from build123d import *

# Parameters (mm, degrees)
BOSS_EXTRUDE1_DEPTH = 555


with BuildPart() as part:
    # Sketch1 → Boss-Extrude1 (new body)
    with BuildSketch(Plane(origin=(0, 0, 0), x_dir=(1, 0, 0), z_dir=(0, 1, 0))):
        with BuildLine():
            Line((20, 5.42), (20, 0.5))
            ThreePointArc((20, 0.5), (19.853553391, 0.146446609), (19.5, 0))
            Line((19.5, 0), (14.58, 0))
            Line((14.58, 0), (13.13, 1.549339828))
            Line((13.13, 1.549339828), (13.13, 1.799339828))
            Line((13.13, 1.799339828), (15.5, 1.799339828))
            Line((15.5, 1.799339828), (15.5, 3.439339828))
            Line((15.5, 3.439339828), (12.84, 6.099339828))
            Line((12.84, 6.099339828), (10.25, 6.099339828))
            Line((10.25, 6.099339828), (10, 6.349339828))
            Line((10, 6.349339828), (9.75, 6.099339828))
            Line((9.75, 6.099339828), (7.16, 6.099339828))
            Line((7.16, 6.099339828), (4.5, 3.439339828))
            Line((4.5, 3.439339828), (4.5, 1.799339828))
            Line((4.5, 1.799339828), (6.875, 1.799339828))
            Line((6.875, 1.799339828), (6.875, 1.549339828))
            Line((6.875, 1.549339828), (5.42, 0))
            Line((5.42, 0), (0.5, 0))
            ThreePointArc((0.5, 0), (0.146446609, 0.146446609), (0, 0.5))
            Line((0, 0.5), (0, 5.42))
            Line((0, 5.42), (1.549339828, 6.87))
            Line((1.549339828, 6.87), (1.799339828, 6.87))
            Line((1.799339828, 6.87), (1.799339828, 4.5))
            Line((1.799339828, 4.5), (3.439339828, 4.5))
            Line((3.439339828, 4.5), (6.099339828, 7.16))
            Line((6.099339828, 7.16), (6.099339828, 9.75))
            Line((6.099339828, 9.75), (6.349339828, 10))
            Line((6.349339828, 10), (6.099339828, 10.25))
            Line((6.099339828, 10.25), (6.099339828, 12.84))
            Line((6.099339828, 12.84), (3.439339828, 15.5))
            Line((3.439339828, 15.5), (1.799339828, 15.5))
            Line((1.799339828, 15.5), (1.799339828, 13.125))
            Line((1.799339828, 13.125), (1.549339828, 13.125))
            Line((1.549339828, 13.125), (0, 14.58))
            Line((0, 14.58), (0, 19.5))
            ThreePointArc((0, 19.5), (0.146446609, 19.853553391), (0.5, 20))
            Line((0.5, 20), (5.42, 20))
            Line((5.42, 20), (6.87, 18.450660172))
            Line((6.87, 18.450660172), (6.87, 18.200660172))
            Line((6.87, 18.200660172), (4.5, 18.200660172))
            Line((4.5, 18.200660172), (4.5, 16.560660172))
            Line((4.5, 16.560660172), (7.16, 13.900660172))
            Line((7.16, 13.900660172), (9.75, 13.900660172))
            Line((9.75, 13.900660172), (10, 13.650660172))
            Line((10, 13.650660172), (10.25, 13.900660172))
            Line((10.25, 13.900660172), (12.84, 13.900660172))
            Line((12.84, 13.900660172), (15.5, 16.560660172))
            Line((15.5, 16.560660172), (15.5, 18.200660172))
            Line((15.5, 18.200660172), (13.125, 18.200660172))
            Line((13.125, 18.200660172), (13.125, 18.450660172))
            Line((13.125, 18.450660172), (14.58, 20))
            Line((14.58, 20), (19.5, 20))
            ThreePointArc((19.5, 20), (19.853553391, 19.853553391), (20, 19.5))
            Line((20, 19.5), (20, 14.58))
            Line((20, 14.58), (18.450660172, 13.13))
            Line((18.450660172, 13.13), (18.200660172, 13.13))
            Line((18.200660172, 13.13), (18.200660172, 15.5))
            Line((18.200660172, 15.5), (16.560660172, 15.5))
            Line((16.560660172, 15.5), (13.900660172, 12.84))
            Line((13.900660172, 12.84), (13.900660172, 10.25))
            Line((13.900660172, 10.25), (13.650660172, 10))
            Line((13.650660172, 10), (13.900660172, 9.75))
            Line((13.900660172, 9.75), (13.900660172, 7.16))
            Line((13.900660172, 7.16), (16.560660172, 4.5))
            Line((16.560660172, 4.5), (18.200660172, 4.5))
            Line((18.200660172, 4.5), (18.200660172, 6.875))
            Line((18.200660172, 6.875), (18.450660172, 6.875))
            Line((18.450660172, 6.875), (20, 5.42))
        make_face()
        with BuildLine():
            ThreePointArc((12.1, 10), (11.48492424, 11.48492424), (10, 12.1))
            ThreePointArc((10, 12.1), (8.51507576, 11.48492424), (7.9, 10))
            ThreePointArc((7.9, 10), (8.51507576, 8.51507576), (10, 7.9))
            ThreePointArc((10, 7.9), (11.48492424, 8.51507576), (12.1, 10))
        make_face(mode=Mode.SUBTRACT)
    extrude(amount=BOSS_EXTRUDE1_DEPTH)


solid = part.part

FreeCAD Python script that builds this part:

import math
import FreeCAD as App
import Part
import Sketcher
from FreeCAD import Vector

doc = App.newDocument("Part")
body = doc.addObject("PartDesign::Body", "Body")

sketch1 = body.newObject("Sketcher::SketchObject", "Sketch")
sketch1.AttachmentSupport = (doc.getObject("XZ_Plane"), [""])
sketch1.MapMode = "FlatFace"
sketch1.addGeometry(Part.LineSegment(Vector(20, -0.5, 0), Vector(20, -5.42, 0)), False)
sketch1.addGeometry(Part.LineSegment(Vector(20, -5.42, 0), Vector(18.45, -6.88, 0)), False)
sketch1.addGeometry(Part.LineSegment(Vector(18.45, -6.88, 0), Vector(18.2, -6.88, 0)), False)
sketch1.addGeometry(Part.LineSegment(Vector(18.2, -6.88, 0), Vector(18.2, -4.5, 0)), False)
sketch1.addGeometry(Part.LineSegment(Vector(18.2, -4.5, 0), Vector(16.56, -4.5, 0)), False)
sketch1.addGeometry(Part.LineSegment(Vector(16.56, -4.5, 0), Vector(13.9, -7.16, 0)), False)
sketch1.addGeometry(Part.LineSegment(Vector(13.9, -7.16, 0), Vector(13.9, -9.75, 0)), False)
sketch1.addGeometry(Part.LineSegment(Vector(13.9, -9.75, 0), Vector(13.65, -10, 0)), False)
sketch1.addGeometry(Part.LineSegment(Vector(13.65, -10, 0), Vector(13.9, -10.25, 0)), False)
sketch1.addGeometry(Part.LineSegment(Vector(13.9, -10.25, 0), Vector(13.9, -12.84, 0)), False)
sketch1.addGeometry(Part.LineSegment(Vector(13.9, -12.84, 0), Vector(16.56, -15.5, 0)), False)
sketch1.addGeometry(Part.LineSegment(Vector(16.56, -15.5, 0), Vector(18.2, -15.5, 0)), False)
sketch1.addGeometry(Part.LineSegment(Vector(18.2, -15.5, 0), Vector(18.2, -13.13, 0)), False)
sketch1.addGeometry(Part.LineSegment(Vector(18.2, -13.13, 0), Vector(18.45, -13.13, 0)), False)
sketch1.addGeometry(Part.LineSegment(Vector(18.45, -13.13, 0), Vector(20, -14.58, 0)), False)
sketch1.addGeometry(Part.LineSegment(Vector(20, -14.58, 0), Vector(20, -19.5, 0)), False)
sketch1.addGeometry(Part.ArcOfCircle(Part.Circle(Vector(19.5, -19.5, 0), Vector(0, 0, 1), 0.5), math.radians(-90), math.radians(0)), False)
sketch1.addGeometry(Part.LineSegment(Vector(19.5, -20, 0), Vector(14.58, -20, 0)), False)
sketch1.addGeometry(Part.LineSegment(Vector(14.58, -20, 0), Vector(13.12, -18.45, 0)), False)
sketch1.addGeometry(Part.LineSegment(Vector(13.12, -18.45, 0), Vector(13.12, -18.2, 0)), False)
sketch1.addGeometry(Part.LineSegment(Vector(13.12, -18.2, 0), Vector(15.5, -18.2, 0)), False)
sketch1.addGeometry(Part.LineSegment(Vector(15.5, -18.2, 0), Vector(15.5, -16.56, 0)), False)
sketch1.addGeometry(Part.LineSegment(Vector(15.5, -16.56, 0), Vector(12.84, -13.9, 0)), False)
sketch1.addGeometry(Part.LineSegment(Vector(12.84, -13.9, 0), Vector(10.25, -13.9, 0)), False)
sketch1.addGeometry(Part.LineSegment(Vector(10.25, -13.9, 0), Vector(10, -13.65, 0)), False)
sketch1.addGeometry(Part.LineSegment(Vector(10, -13.65, 0), Vector(9.75, -13.9, 0)), False)
sketch1.addGeometry(Part.LineSegment(Vector(9.75, -13.9, 0), Vector(7.16, -13.9, 0)), False)
sketch1.addGeometry(Part.LineSegment(Vector(7.16, -13.9, 0), Vector(4.5, -16.56, 0)), False)
sketch1.addGeometry(Part.LineSegment(Vector(4.5, -16.56, 0), Vector(4.5, -18.2, 0)), False)
sketch1.addGeometry(Part.LineSegment(Vector(4.5, -18.2, 0), Vector(6.87, -18.2, 0)), False)
sketch1.addGeometry(Part.LineSegment(Vector(6.87, -18.2, 0), Vector(6.87, -18.45, 0)), False)
sketch1.addGeometry(Part.LineSegment(Vector(6.87, -18.45, 0), Vector(5.42, -20, 0)), False)
sketch1.addGeometry(Part.LineSegment(Vector(5.42, -20, 0), Vector(0.5, -20, 0)), False)
sketch1.addGeometry(Part.ArcOfCircle(Part.Circle(Vector(0.5, -19.5, 0), Vector(0, 0, 1), 0.5), math.radians(180), math.radians(270)), False)
sketch1.addGeometry(Part.LineSegment(Vector(0, -19.5, 0), Vector(0, -14.58, 0)), False)
sketch1.addGeometry(Part.LineSegment(Vector(0, -14.58, 0), Vector(1.55, -13.12, 0)), False)
sketch1.addGeometry(Part.LineSegment(Vector(1.55, -13.12, 0), Vector(1.8, -13.12, 0)), False)
sketch1.addGeometry(Part.LineSegment(Vector(1.8, -13.12, 0), Vector(1.8, -15.5, 0)), False)
sketch1.addGeometry(Part.LineSegment(Vector(1.8, -15.5, 0), Vector(3.44, -15.5, 0)), False)
sketch1.addGeometry(Part.LineSegment(Vector(3.44, -15.5, 0), Vector(6.1, -12.84, 0)), False)
sketch1.addGeometry(Part.LineSegment(Vector(6.1, -12.84, 0), Vector(6.1, -10.25, 0)), False)
sketch1.addGeometry(Part.LineSegment(Vector(6.1, -10.25, 0), Vector(6.35, -10, 0)), False)
sketch1.addGeometry(Part.LineSegment(Vector(6.35, -10, 0), Vector(6.1, -9.75, 0)), False)
sketch1.addGeometry(Part.LineSegment(Vector(6.1, -9.75, 0), Vector(6.1, -7.16, 0)), False)
sketch1.addGeometry(Part.LineSegment(Vector(6.1, -7.16, 0), Vector(3.44, -4.5, 0)), False)
sketch1.addGeometry(Part.LineSegment(Vector(3.44, -4.5, 0), Vector(1.8, -4.5, 0)), False)
sketch1.addGeometry(Part.LineSegment(Vector(1.8, -4.5, 0), Vector(1.8, -6.87, 0)), False)
sketch1.addGeometry(Part.LineSegment(Vector(1.8, -6.87, 0), Vector(1.55, -6.87, 0)), False)
sketch1.addGeometry(Part.LineSegment(Vector(1.55, -6.87, 0), Vector(0, -5.42, 0)), False)
sketch1.addGeometry(Part.LineSegment(Vector(0, -5.42, 0), Vector(0, -0.5, 0)), False)
sketch1.addGeometry(Part.ArcOfCircle(Part.Circle(Vector(0.5, -0.5, 0), Vector(0, 0, 1), 0.5), math.radians(90), math.radians(180)), False)
sketch1.addGeometry(Part.LineSegment(Vector(0.5, 0, 0), Vector(5.42, 0, 0)), False)
sketch1.addGeometry(Part.LineSegment(Vector(5.42, 0, 0), Vector(6.88, -1.55, 0)), False)
sketch1.addGeometry(Part.LineSegment(Vector(6.88, -1.55, 0), Vector(6.88, -1.8, 0)), False)
sketch1.addGeometry(Part.LineSegment(Vector(6.88, -1.8, 0), Vector(4.5, -1.8, 0)), False)
sketch1.addGeometry(Part.LineSegment(Vector(4.5, -1.8, 0), Vector(4.5, -3.44, 0)), False)
sketch1.addGeometry(Part.LineSegment(Vector(4.5, -3.44, 0), Vector(7.16, -6.1, 0)), False)
sketch1.addGeometry(Part.LineSegment(Vector(7.16, -6.1, 0), Vector(9.75, -6.1, 0)), False)
sketch1.addGeometry(Part.LineSegment(Vector(9.75, -6.1, 0), Vector(10, -6.35, 0)), False)
sketch1.addGeometry(Part.LineSegment(Vector(10, -6.35, 0), Vector(10.25, -6.1, 0)), False)
sketch1.addGeometry(Part.LineSegment(Vector(10.25, -6.1, 0), Vector(12.84, -6.1, 0)), False)
sketch1.addGeometry(Part.LineSegment(Vector(12.84, -6.1, 0), Vector(15.5, -3.44, 0)), False)
sketch1.addGeometry(Part.LineSegment(Vector(15.5, -3.44, 0), Vector(15.5, -1.8, 0)), False)
sketch1.addGeometry(Part.LineSegment(Vector(15.5, -1.8, 0), Vector(13.13, -1.8, 0)), False)
sketch1.addGeometry(Part.LineSegment(Vector(13.13, -1.8, 0), Vector(13.13, -1.55, 0)), False)
sketch1.addGeometry(Part.LineSegment(Vector(13.13, -1.55, 0), Vector(14.58, 0, 0)), False)
sketch1.addGeometry(Part.LineSegment(Vector(14.58, 0, 0), Vector(19.5, 0, 0)), False)
sketch1.addGeometry(Part.ArcOfCircle(Part.Circle(Vector(19.5, -0.5, 0), Vector(0, 0, 1), 0.5), math.radians(0), math.radians(90)), False)
sketch1.addGeometry(Part.ArcOfCircle(Part.Circle(Vector(10, -10, 0), Vector(0, 0, 1), 2.1), math.radians(0), math.radians(90)), False)
sketch1.addGeometry(Part.ArcOfCircle(Part.Circle(Vector(10, -10, 0), Vector(0, 0, 1), 2.1), math.radians(90), math.radians(180)), False)
sketch1.addGeometry(Part.ArcOfCircle(Part.Circle(Vector(10, -10, 0), Vector(0, 0, 1), 2.1), math.radians(-180), math.radians(-90)), False)
sketch1.addGeometry(Part.ArcOfCircle(Part.Circle(Vector(10, -10, 0), Vector(0, 0, 1), 2.1), math.radians(-90), math.radians(0)), False)
sketch1.addConstraint(Sketcher.Constraint("Coincident", 0, 2, 1, 1))
sketch1.addConstraint(Sketcher.Constraint("Coincident", 1, 2, 2, 1))
sketch1.addConstraint(Sketcher.Constraint("Coincident", 2, 2, 3, 1))
sketch1.addConstraint(Sketcher.Constraint("Coincident", 3, 2, 4, 1))
sketch1.addConstraint(Sketcher.Constraint("Coincident", 4, 2, 5, 1))
sketch1.addConstraint(Sketcher.Constraint("Coincident", 5, 2, 6, 1))
sketch1.addConstraint(Sketcher.Constraint("Coincident", 6, 2, 7, 1))
sketch1.addConstraint(Sketcher.Constraint("Coincident", 7, 2, 8, 1))
sketch1.addConstraint(Sketcher.Constraint("Coincident", 8, 2, 9, 1))
sketch1.addConstraint(Sketcher.Constraint("Coincident", 9, 2, 10, 1))
sketch1.addConstraint(Sketcher.Constraint("Coincident", 10, 2, 11, 1))
sketch1.addConstraint(Sketcher.Constraint("Coincident", 11, 2, 12, 1))
sketch1.addConstraint(Sketcher.Constraint("Coincident", 12, 2, 13, 1))
sketch1.addConstraint(Sketcher.Constraint("Coincident", 13, 2, 14, 1))
sketch1.addConstraint(Sketcher.Constraint("Coincident", 14, 2, 15, 1))
sketch1.addConstraint(Sketcher.Constraint("Tangent", 15, 2, 16, 2))
sketch1.addConstraint(Sketcher.Constraint("Tangent", 16, 1, 17, 1))
sketch1.addConstraint(Sketcher.Constraint("Coincident", 17, 2, 18, 1))
sketch1.addConstraint(Sketcher.Constraint("Coincident", 18, 2, 19, 1))
sketch1.addConstraint(Sketcher.Constraint("Coincident", 19, 2, 20, 1))
sketch1.addConstraint(Sketcher.Constraint("Coincident", 20, 2, 21, 1))
sketch1.addConstraint(Sketcher.Constraint("Coincident", 21, 2, 22, 1))
sketch1.addConstraint(Sketcher.Constraint("Coincident", 22, 2, 23, 1))
sketch1.addConstraint(Sketcher.Constraint("Coincident", 23, 2, 24, 1))
sketch1.addConstraint(Sketcher.Constraint("Coincident", 24, 2, 25, 1))
sketch1.addConstraint(Sketcher.Constraint("Coincident", 25, 2, 26, 1))
sketch1.addConstraint(Sketcher.Constraint("Coincident", 26, 2, 27, 1))
sketch1.addConstraint(Sketcher.Constraint("Coincident", 27, 2, 28, 1))
sketch1.addConstraint(Sketcher.Constraint("Coincident", 28, 2, 29, 1))
sketch1.addConstraint(Sketcher.Constraint("Coincident", 29, 2, 30, 1))
sketch1.addConstraint(Sketcher.Constraint("Coincident", 30, 2, 31, 1))
sketch1.addConstraint(Sketcher.Constraint("Coincident", 31, 2, 32, 1))
sketch1.addConstraint(Sketcher.Constraint("Tangent", 32, 2, 33, 2))
sketch1.addConstraint(Sketcher.Constraint("Tangent", 33, 1, 34, 1))
sketch1.addConstraint(Sketcher.Constraint("Coincident", 34, 2, 35, 1))
sketch1.addConstraint(Sketcher.Constraint("Coincident", 35, 2, 36, 1))
sketch1.addConstraint(Sketcher.Constraint("Coincident", 36, 2, 37, 1))
sketch1.addConstraint(Sketcher.Constraint("Coincident", 37, 2, 38, 1))
sketch1.addConstraint(Sketcher.Constraint("Coincident", 38, 2, 39, 1))
sketch1.addConstraint(Sketcher.Constraint("Coincident", 39, 2, 40, 1))
sketch1.addConstraint(Sketcher.Constraint("Coincident", 40, 2, 41, 1))
sketch1.addConstraint(Sketcher.Constraint("Coincident", 41, 2, 42, 1))
sketch1.addConstraint(Sketcher.Constraint("Coincident", 42, 2, 43, 1))
sketch1.addConstraint(Sketcher.Constraint("Coincident", 43, 2, 44, 1))
sketch1.addConstraint(Sketcher.Constraint("Coincident", 44, 2, 45, 1))
sketch1.addConstraint(Sketcher.Constraint("Coincident", 45, 2, 46, 1))
sketch1.addConstraint(Sketcher.Constraint("Coincident", 46, 2, 47, 1))
sketch1.addConstraint(Sketcher.Constraint("Coincident", 47, 2, 48, 1))
sketch1.addConstraint(Sketcher.Constraint("Coincident", 48, 2, 49, 1))
sketch1.addConstraint(Sketcher.Constraint("Tangent", 49, 2, 50, 2))
sketch1.addConstraint(Sketcher.Constraint("Tangent", 50, 1, 51, 1))
sketch1.addConstraint(Sketcher.Constraint("Coincident", 51, 2, 52, 1))
sketch1.addConstraint(Sketcher.Constraint("Coincident", 52, 2, 53, 1))
sketch1.addConstraint(Sketcher.Constraint("Coincident", 53, 2, 54, 1))
sketch1.addConstraint(Sketcher.Constraint("Coincident", 54, 2, 55, 1))
sketch1.addConstraint(Sketcher.Constraint("Coincident", 55, 2, 56, 1))
sketch1.addConstraint(Sketcher.Constraint("Coincident", 56, 2, 57, 1))
sketch1.addConstraint(Sketcher.Constraint("Coincident", 57, 2, 58, 1))
sketch1.addConstraint(Sketcher.Constraint("Coincident", 58, 2, 59, 1))
sketch1.addConstraint(Sketcher.Constraint("Coincident", 59, 2, 60, 1))
sketch1.addConstraint(Sketcher.Constraint("Coincident", 60, 2, 61, 1))
sketch1.addConstraint(Sketcher.Constraint("Coincident", 61, 2, 62, 1))
sketch1.addConstraint(Sketcher.Constraint("Coincident", 62, 2, 63, 1))
sketch1.addConstraint(Sketcher.Constraint("Coincident", 63, 2, 64, 1))
sketch1.addConstraint(Sketcher.Constraint("Coincident", 64, 2, 65, 1))
sketch1.addConstraint(Sketcher.Constraint("Coincident", 65, 2, 66, 1))
sketch1.addConstraint(Sketcher.Constraint("Tangent", 66, 2, 67, 2))
sketch1.addConstraint(Sketcher.Constraint("Tangent", 67, 1, 0, 1))
sketch1.addConstraint(Sketcher.Constraint("Tangent", 68, 2, 69, 1))
sketch1.addConstraint(Sketcher.Constraint("Tangent", 69, 2, 70, 1))
sketch1.addConstraint(Sketcher.Constraint("Tangent", 70, 2, 71, 1))
sketch1.addConstraint(Sketcher.Constraint("Tangent", 71, 2, 68, 1))
sketch1.addConstraint(Sketcher.Constraint("Vertical", 0))
sketch1.addConstraint(Sketcher.Constraint("Horizontal", 2))
sketch1.addConstraint(Sketcher.Constraint("Vertical", 3))
sketch1.addConstraint(Sketcher.Constraint("Horizontal", 4))
sketch1.addConstraint(Sketcher.Constraint("Vertical", 6))
sketch1.addConstraint(Sketcher.Constraint("Vertical", 9))
sketch1.addConstraint(Sketcher.Constraint("Horizontal", 11))
sketch1.addConstraint(Sketcher.Constraint("Vertical", 12))
sketch1.addConstraint(Sketcher.Constraint("Horizontal", 13))
sketch1.addConstraint(Sketcher.Constraint("Vertical", 15))
sketch1.addConstraint(Sketcher.Constraint("Horizontal", 17))
sketch1.addConstraint(Sketcher.Constraint("Vertical", 19))
sketch1.addConstraint(Sketcher.Constraint("Horizontal", 20))
sketch1.addConstraint(Sketcher.Constraint("Vertical", 21))
sketch1.addConstraint(Sketcher.Constraint("Horizontal", 23))
sketch1.addConstraint(Sketcher.Constraint("Horizontal", 26))
sketch1.addConstraint(Sketcher.Constraint("Vertical", 28))
sketch1.addConstraint(Sketcher.Constraint("Horizontal", 29))
sketch1.addConstraint(Sketcher.Constraint("Vertical", 30))
sketch1.addConstraint(Sketcher.Constraint("Horizontal", 32))
sketch1.addConstraint(Sketcher.Constraint("Vertical", 34))
sketch1.addConstraint(Sketcher.Constraint("Horizontal", 36))
sketch1.addConstraint(Sketcher.Constraint("Vertical", 37))
sketch1.addConstraint(Sketcher.Constraint("Horizontal", 38))
sketch1.addConstraint(Sketcher.Constraint("Vertical", 40))
sketch1.addConstraint(Sketcher.Constraint("Vertical", 43))
sketch1.addConstraint(Sketcher.Constraint("Horizontal", 45))
sketch1.addConstraint(Sketcher.Constraint("Vertical", 46))
sketch1.addConstraint(Sketcher.Constraint("Horizontal", 47))
sketch1.addConstraint(Sketcher.Constraint("Vertical", 49))
sketch1.addConstraint(Sketcher.Constraint("Horizontal", 51))
sketch1.addConstraint(Sketcher.Constraint("Vertical", 53))
sketch1.addConstraint(Sketcher.Constraint("Horizontal", 54))
sketch1.addConstraint(Sketcher.Constraint("Vertical", 55))
sketch1.addConstraint(Sketcher.Constraint("Horizontal", 57))
sketch1.addConstraint(Sketcher.Constraint("Horizontal", 60))
sketch1.addConstraint(Sketcher.Constraint("Vertical", 62))
sketch1.addConstraint(Sketcher.Constraint("Horizontal", 63))
sketch1.addConstraint(Sketcher.Constraint("Vertical", 64))
sketch1.addConstraint(Sketcher.Constraint("Horizontal", 66))
sketch1.addConstraint(Sketcher.Constraint("Equal", 16, 33))
sketch1.addConstraint(Sketcher.Constraint("Equal", 33, 50))
sketch1.addConstraint(Sketcher.Constraint("Equal", 50, 67))
sketch1.addConstraint(Sketcher.Constraint("Equal", 68, 69))
sketch1.addConstraint(Sketcher.Constraint("PointOnObject", 33, 1, -2))
sketch1.addConstraint(Sketcher.Constraint("PointOnObject", 48, 2, -2))
sketch1.addConstraint(Sketcher.Constraint("PointOnObject", 50, 1, -1))
sketch1.addConstraint(Sketcher.Constraint("PointOnObject", 65, 2, -1))
sketch1.addConstraint(Sketcher.Constraint("Parallel", 5, 7))
sketch1.addConstraint(Sketcher.Constraint("Perpendicular", 7, 8))
sketch1.addConstraint(Sketcher.Constraint("Parallel", 8, 10))
sketch1.addConstraint(Sketcher.Constraint("Perpendicular", 1, 18))
sketch1.addConstraint(Sketcher.Constraint("Parallel", 10, 22))
sketch1.addConstraint(Sketcher.Constraint("Parallel", 22, 24))
sketch1.addConstraint(Sketcher.Constraint("Perpendicular", 24, 25))
sketch1.addConstraint(Sketcher.Constraint("Parallel", 25, 27))
sketch1.addConstraint(Sketcher.Constraint("Perpendicular", 14, 31))
sketch1.addConstraint(Sketcher.Constraint("Perpendicular", 18, 35))
sketch1.addConstraint(Sketcher.Constraint("Parallel", 27, 39))
sketch1.addConstraint(Sketcher.Constraint("Parallel", 39, 41))
sketch1.addConstraint(Sketcher.Constraint("Perpendicular", 41, 42))
sketch1.addConstraint(Sketcher.Constraint("Parallel", 42, 44))
sketch1.addConstraint(Sketcher.Constraint("Perpendicular", 31, 48))
sketch1.addConstraint(Sketcher.Constraint("Perpendicular", 35, 52))
sketch1.addConstraint(Sketcher.Constraint("Parallel", 44, 56))
sketch1.addConstraint(Sketcher.Constraint("Parallel", 56, 58))
sketch1.addConstraint(Sketcher.Constraint("Perpendicular", 58, 59))
sketch1.addConstraint(Sketcher.Constraint("Parallel", 59, 61))
sketch1.addConstraint(Sketcher.Constraint("Perpendicular", 48, 65))
sketch1.addConstraint(Sketcher.Constraint("Horizontal", 16, 3, 33, 3))
sketch1.addConstraint(Sketcher.Constraint("Horizontal", 71, 3, 7, 2))
sketch1.addConstraint(Sketcher.Constraint("Horizontal", 23, 2, 25, 2))
sketch1.addConstraint(Sketcher.Constraint("Horizontal", 21, 2, 27, 2))
sketch1.addConstraint(Sketcher.Constraint("Horizontal", 20, 2, 28, 2))
sketch1.addConstraint(Sketcher.Constraint("Horizontal", 18, 2, 30, 2))
sketch1.addConstraint(Sketcher.Constraint("Horizontal", 14, 2, 34, 2))
sketch1.addConstraint(Sketcher.Constraint("Horizontal", 11, 2, 37, 2))
sketch1.addConstraint(Sketcher.Constraint("Horizontal", 9, 2, 39, 2))
sketch1.addConstraint(Sketcher.Constraint("Horizontal", 8, 2, 40, 2))
sketch1.addConstraint(Sketcher.Constraint("Horizontal", 7, 2, 41, 2))
sketch1.addConstraint(Sketcher.Constraint("Horizontal", 6, 2, 42, 2))
sketch1.addConstraint(Sketcher.Constraint("Horizontal", 5, 2, 43, 2))
sketch1.addConstraint(Sketcher.Constraint("Horizontal", 4, 2, 44, 2))
sketch1.addConstraint(Sketcher.Constraint("Horizontal", 0, 2, 48, 2))
sketch1.addConstraint(Sketcher.Constraint("Horizontal", 57, 2, 59, 2))
sketch1.addConstraint(Sketcher.Constraint("Horizontal", 55, 2, 61, 2))
sketch1.addConstraint(Sketcher.Constraint("Horizontal", 54, 2, 62, 2))
sketch1.addConstraint(Sketcher.Constraint("Horizontal", 52, 2, 64, 2))
sketch1.addConstraint(Sketcher.Constraint("Horizontal", 41, 2, 69, 2))
sketch1.addConstraint(Sketcher.Constraint("Horizontal", 69, 2, 71, 2))
sketch1.addConstraint(Sketcher.Constraint("Vertical", 16, 3, 67, 3))
sketch1.addConstraint(Sketcher.Constraint("Vertical", 6, 2, 8, 2))
sketch1.addConstraint(Sketcher.Constraint("Vertical", 4, 2, 10, 2))
sketch1.addConstraint(Sketcher.Constraint("Vertical", 3, 2, 11, 2))
sketch1.addConstraint(Sketcher.Constraint("Vertical", 1, 2, 13, 2))
sketch1.addConstraint(Sketcher.Constraint("Vertical", 71, 3, 24, 2))
sketch1.addConstraint(Sketcher.Constraint("Vertical", 40, 2, 42, 2))
sketch1.addConstraint(Sketcher.Constraint("Vertical", 37, 2, 45, 2))
sketch1.addConstraint(Sketcher.Constraint("Vertical", 35, 2, 47, 2))
sketch1.addConstraint(Sketcher.Constraint("Vertical", 31, 2, 51, 2))
sketch1.addConstraint(Sketcher.Constraint("Vertical", 28, 2, 54, 2))
sketch1.addConstraint(Sketcher.Constraint("Vertical", 26, 2, 56, 2))
sketch1.addConstraint(Sketcher.Constraint("Vertical", 25, 2, 57, 2))
sketch1.addConstraint(Sketcher.Constraint("Vertical", 24, 2, 58, 2))
sketch1.addConstraint(Sketcher.Constraint("Vertical", 22, 2, 60, 2))
sketch1.addConstraint(Sketcher.Constraint("Vertical", 17, 2, 65, 2))
sketch1.addConstraint(Sketcher.Constraint("Vertical", 58, 2, 68, 2))
sketch1.addConstraint(Sketcher.Constraint("Vertical", 68, 2, 70, 2))
sketch1.addConstraint(Sketcher.Constraint("Equal", 23, 26))
sketch1.addConstraint(Sketcher.Constraint("Equal", 17, 32))
sketch1.addConstraint(Sketcher.Constraint("Equal", 13, 36))
sketch1.addConstraint(Sketcher.Constraint("Equal", 11, 38))
sketch1.addConstraint(Sketcher.Constraint("Equal", 20, 54))
sketch1.addConstraint(Sketcher.Constraint("Equal", 29, 63))
sketch1.addConstraint(Sketcher.Constraint("Equal", 66, 0))
sketch1.addConstraint(Sketcher.Constraint("Equal", 54, 3))
sketch1.addConstraint(Sketcher.Constraint("Equal", 60, 6))
sketch1.addConstraint(Sketcher.Constraint("Equal", 6, 9))
sketch1.addConstraint(Sketcher.Constraint("Equal", 63, 12))
sketch1.addConstraint(Sketcher.Constraint("Equal", 0, 15))
sketch1.addConstraint(Sketcher.Constraint("Equal", 47, 19))
sketch1.addConstraint(Sketcher.Constraint("Equal", 45, 21))
sketch1.addConstraint(Sketcher.Constraint("Equal", 3, 37))
sketch1.addConstraint(Sketcher.Constraint("Equal", 30, 53))
sketch1.addConstraint(Sketcher.Constraint("Equal", 28, 55))
sketch1.addConstraint(Sketcher.Constraint("Equal", 1, 18))
sketch1.addConstraint(Sketcher.Constraint("Equal", 10, 22))
sketch1.addConstraint(Sketcher.Constraint("Equal", 8, 24))
sketch1.addConstraint(Sketcher.Constraint("Radius", 16, 0.5))
sketch1.addConstraint(Sketcher.Constraint("Radius", 68, 2.1))
sketch1.addConstraint(Sketcher.Constraint("DistanceX", -1, 1, 68, 3, 10.0))
sketch1.addConstraint(Sketcher.Constraint("DistanceX", 2, 2, 2, 1, 0.25))
sketch1.addConstraint(Sketcher.Constraint("DistanceX", 4, 2, 4, 1, 1.64))
sketch1.addConstraint(Sketcher.Constraint("DistanceX", 17, 2, 17, 1, 4.92))
sketch1.addConstraint(Sketcher.Constraint("DistanceX", 23, 2, 23, 1, 2.59))
sketch1.addConstraint(Sketcher.Constraint("DistanceX", 29, 1, 29, 2, 2.37))
sketch1.addConstraint(Sketcher.Constraint("DistanceY", 3, 2, -1, 1, 4.5))
sketch1.addConstraint(Sketcher.Constraint("DistanceX", 20, 1, 20, 2, 2.375))
sketch1.addConstraint(Sketcher.Constraint("DistanceY", 5, 2, -1, 1, 7.16))
sketch1.addConstraint(Sketcher.Constraint("DistanceX", -1, 1, 1, 2, 18.45066))
pad1 = body.newObject("PartDesign::Pad", "Pad")
pad1.Profile = sketch1
pad1.Length = 555
pad1.Reversed = True

doc.recompute()
